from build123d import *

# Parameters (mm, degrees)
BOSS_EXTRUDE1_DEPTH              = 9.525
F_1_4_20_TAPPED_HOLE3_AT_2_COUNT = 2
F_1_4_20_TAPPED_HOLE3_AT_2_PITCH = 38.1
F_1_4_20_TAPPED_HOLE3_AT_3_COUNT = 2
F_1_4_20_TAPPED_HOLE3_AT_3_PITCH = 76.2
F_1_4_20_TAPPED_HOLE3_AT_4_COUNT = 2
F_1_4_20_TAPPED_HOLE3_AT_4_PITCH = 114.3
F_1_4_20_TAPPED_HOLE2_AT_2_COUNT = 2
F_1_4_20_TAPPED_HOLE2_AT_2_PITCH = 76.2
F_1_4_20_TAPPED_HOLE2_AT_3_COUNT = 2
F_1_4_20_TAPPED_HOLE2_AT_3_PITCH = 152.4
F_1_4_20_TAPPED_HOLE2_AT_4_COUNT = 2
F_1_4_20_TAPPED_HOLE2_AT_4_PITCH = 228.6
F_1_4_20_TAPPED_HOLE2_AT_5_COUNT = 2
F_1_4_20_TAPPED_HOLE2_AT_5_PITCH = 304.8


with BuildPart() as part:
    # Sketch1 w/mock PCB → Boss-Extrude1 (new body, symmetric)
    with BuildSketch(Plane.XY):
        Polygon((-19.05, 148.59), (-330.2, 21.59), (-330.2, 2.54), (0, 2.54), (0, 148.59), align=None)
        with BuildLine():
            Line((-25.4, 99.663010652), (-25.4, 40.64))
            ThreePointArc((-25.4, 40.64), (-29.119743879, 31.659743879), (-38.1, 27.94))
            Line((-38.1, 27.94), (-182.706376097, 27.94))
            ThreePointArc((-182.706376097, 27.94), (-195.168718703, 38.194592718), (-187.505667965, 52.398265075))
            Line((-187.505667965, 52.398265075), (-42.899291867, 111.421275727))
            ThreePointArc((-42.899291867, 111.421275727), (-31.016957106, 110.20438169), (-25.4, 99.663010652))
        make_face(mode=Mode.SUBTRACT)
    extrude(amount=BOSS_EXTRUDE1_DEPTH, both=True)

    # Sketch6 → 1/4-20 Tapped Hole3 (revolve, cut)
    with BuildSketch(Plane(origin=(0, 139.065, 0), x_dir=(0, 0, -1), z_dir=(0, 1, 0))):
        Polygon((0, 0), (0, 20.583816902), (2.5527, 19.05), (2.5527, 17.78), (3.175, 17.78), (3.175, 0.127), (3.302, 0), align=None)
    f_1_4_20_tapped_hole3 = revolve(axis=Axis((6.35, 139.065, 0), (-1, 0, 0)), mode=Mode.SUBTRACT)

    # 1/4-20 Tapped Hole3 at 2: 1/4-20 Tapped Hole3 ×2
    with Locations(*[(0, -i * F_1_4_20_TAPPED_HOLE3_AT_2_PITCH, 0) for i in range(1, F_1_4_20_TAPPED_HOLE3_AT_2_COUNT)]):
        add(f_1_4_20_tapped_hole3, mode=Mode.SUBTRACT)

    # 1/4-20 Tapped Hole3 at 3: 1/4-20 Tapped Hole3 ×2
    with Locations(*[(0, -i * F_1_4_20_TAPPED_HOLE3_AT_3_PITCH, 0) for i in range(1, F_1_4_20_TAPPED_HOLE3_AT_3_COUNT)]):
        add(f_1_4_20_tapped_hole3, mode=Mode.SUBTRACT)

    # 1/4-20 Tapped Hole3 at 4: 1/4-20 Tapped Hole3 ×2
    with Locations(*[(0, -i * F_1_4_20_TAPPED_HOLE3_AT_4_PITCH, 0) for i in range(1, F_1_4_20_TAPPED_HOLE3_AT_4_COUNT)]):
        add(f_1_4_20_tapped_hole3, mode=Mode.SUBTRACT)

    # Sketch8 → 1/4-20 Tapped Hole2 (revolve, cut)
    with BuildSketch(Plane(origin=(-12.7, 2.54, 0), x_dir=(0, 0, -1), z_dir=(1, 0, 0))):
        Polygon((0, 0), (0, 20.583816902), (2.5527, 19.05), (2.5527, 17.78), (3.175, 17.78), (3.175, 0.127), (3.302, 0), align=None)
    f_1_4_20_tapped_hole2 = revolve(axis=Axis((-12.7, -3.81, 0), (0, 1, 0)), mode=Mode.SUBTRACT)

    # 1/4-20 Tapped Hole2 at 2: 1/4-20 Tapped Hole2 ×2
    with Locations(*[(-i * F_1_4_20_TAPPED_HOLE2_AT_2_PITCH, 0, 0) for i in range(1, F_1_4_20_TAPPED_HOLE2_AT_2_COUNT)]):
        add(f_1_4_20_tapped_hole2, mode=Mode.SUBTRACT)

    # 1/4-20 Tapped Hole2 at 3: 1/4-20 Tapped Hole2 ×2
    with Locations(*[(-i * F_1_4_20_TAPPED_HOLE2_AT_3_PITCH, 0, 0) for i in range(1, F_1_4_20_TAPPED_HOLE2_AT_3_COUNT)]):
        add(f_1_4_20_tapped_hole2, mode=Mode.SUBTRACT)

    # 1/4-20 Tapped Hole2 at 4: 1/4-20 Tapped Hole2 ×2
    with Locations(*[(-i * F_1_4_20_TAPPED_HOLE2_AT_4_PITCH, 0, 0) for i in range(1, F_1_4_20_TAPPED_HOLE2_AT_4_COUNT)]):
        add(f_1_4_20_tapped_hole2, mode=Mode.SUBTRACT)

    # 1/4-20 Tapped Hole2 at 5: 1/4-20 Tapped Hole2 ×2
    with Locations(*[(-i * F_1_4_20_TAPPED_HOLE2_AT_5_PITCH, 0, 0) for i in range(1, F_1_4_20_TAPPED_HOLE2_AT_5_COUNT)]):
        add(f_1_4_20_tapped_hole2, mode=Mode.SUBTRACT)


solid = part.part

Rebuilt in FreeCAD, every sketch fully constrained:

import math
import FreeCAD as App
import Part
import Sketcher
from FreeCAD import Vector
Q = App.Units.Quantity

doc = App.newDocument("Part")
body = doc.addObject("PartDesign::Body", "Body")

# Sketch on XY plane
sketch1 = body.newObject("Sketcher::SketchObject", "Sketch")
sketch1.AttachmentSupport = (doc.getObject("XY_Plane"), [""])
sketch1.MapMode = "FlatFace"
sketch1.addGeometry([
    Part.LineSegment(Vector(-19, 149, 0), Vector(-330, 22, 0)),  # 0
    Part.LineSegment(Vector(-330, 22, 0), Vector(-330, 3, 0)),  # 1
    Part.LineSegment(Vector(-330, 3, 0), Vector(0, 3, 0)),  # 2
    Part.LineSegment(Vector(0, 3, 0), Vector(0, 149, 0)),  # 3
    Part.LineSegment(Vector(0, 149, 0), Vector(-19, 149, 0)),  # 4
    Part.ArcOfCircle(Part.Circle(Vector(-38, 100, 0), Vector(0, 0, 1), 13), math.radians(0), math.radians(112)),  # 5
    Part.LineSegment(Vector(-25, 100, 0), Vector(-25, 41, 0)),  # 6
    Part.ArcOfCircle(Part.Circle(Vector(-38, 41, 0), Vector(0, 0, 1), 13), math.radians(-90), math.radians(0)),  # 7
    Part.LineSegment(Vector(-38, 28, 0), Vector(-183, 28, 0)),  # 8
    Part.ArcOfCircle(Part.Circle(Vector(-183, 41, 0), Vector(0, 0, 1), 13), math.radians(112), math.radians(270)),  # 9
    Part.LineSegment(Vector(-188, 52, 0), Vector(-43, 111, 0)),  # 10
], False)
sketch1.addConstraint([
    Sketcher.Constraint("Coincident", 0, 2, 1, 1),
    Sketcher.Constraint("Coincident", 1, 2, 2, 1),
    Sketcher.Constraint("Coincident", 2, 2, 3, 1),
    Sketcher.Constraint("Coincident", 3, 2, 4, 1),
    Sketcher.Constraint("Coincident", 4, 2, 0, 1),
    Sketcher.Constraint("Tangent", 5, 1, 6, 1),
    Sketcher.Constraint("Tangent", 6, 2, 7, 2),
    Sketcher.Constraint("Tangent", 7, 1, 8, 1),
    Sketcher.Constraint("Tangent", 8, 2, 9, 2),
    Sketcher.Constraint("Tangent", 9, 1, 10, 1),
    Sketcher.Constraint("Tangent", 10, 2, 5, 2),
    Sketcher.Constraint("Vertical", 1),
    Sketcher.Constraint("Horizontal", 2),
    Sketcher.Constraint("Vertical", 3),
    Sketcher.Constraint("Horizontal", 4),
    Sketcher.Constraint("Vertical", 6),
    Sketcher.Constraint("Horizontal", 8),
    Sketcher.Constraint("Equal", 5, 7),
    Sketcher.Constraint("Equal", 7, 9),
    Sketcher.Constraint("PointOnObject", 2, 2, -2),
    Sketcher.Constraint("Parallel", 0, 10),
    Sketcher.Constraint("Equal", 4, 1),
    Sketcher.Constraint("Radius", 5, Q("0.5 in")),
    Sketcher.Constraint("DistanceX", 2, 1, 2, 2, Q("13 in")),
    Sketcher.Constraint("DistanceX", 5, 1, -1, 1, Q("1 in")),
    Sketcher.Constraint("DistanceY", 0, 2, 3, 2, Q("5 in")),
    Sketcher.Constraint("DistanceY", 2, 2, 7, 1, Q("1 in")),
    Sketcher.Constraint("DistanceX", 4, 2, 4, 1, Q("0.75 in")),
    Sketcher.Constraint("DistanceY", -1, 1, 7, 3, Q("1.6 in")),
    Sketcher.Constraint("DistanceY", 6, 2, 6, 1, Q("59.023011 mm")),
])
pad1 = body.newObject("PartDesign::Pad", "Pad")
pad1.Profile = sketch1
pad1.Length = Q("0.75 in")
pad1.Midplane = True

# Sketch on XZ plane
sketch2 = body.newObject("Sketcher::SketchObject", "Sketch001")
sketch2.AttachmentSupport = (doc.getObject("XZ_Plane"), [""])
sketch2.MapMode = "FlatFace"
sketch2.AttachmentOffset = App.Placement(Vector(0, 0, -5.475 * 25.4), App.Rotation())
sketch2.addGeometry([
    Part.LineSegment(Vector(-20.58, 0, 0), Vector(0, 0, 0)),  # 0
    Part.LineSegment(Vector(0, 0, 0), Vector(0, -3.3, 0)),  # 1
    Part.LineSegment(Vector(0, -3.3, 0), Vector(-0.13, -3.17, 0)),  # 2
    Part.LineSegment(Vector(-0.13, -3.17, 0), Vector(-17.78, -3.17, 0)),  # 3
    Part.LineSegment(Vector(-17.78, -3.17, 0), Vector(-17.78, -2.55, 0)),  # 4
    Part.LineSegment(Vector(-17.78, -2.55, 0), Vector(-19.05, -2.55, 0)),  # 5
    Part.LineSegment(Vector(-19.05, -2.55, 0), Vector(-20.58, 0, 0)),  # 6
], False)
sketch2.addConstraint([
    Sketcher.Constraint("Coincident", 0, 2, 1, 1),
    Sketcher.Constraint("Coincident", 1, 2, 2, 1),
    Sketcher.Constraint("Coincident", 2, 2, 3, 1),
    Sketcher.Constraint("Coincident", 3, 2, 4, 1),
    Sketcher.Constraint("Coincident", 4, 2, 5, 1),
    Sketcher.Constraint("Coincident", 5, 2, 6, 1),
    Sketcher.Constraint("Coincident", 6, 2, 0, 1),
    Sketcher.Constraint("Horizontal", 0),
    Sketcher.Constraint("Vertical", 1),
    Sketcher.Constraint("Horizontal", 3),
    Sketcher.Constraint("Vertical", 4),
    Sketcher.Constraint("Horizontal", 5),
    Sketcher.Constraint("Coincident", 0, 2, -1, 1),
    Sketcher.Constraint("Angle", 2, Q("135 deg")),
    Sketcher.Constraint("Angle", 6, Q("121 deg")),
    Sketcher.Constraint("DistanceX", 5, 2, 5, 1, Q("0.05 in")),
    Sketcher.Constraint("DistanceY", 1, 2, 1, 1, Q("0.13 in")),
    Sketcher.Constraint("DistanceX", 3, 2, -1, 1, Q("0.7 in")),
    Sketcher.Constraint("DistanceX", 3, 2, 3, 1, Q("0.695 in")),
    Sketcher.Constraint("DistanceY", 4, 1, 4, 2, Q("0.0245 in")),
])
groove = body.newObject("PartDesign::Groove", "Groove")
groove.Profile = sketch2
groove.ReferenceAxis = (sketch2, ["H_Axis"])
groove.Angle = 360
doc.recompute()

linearpattern = body.newObject("PartDesign::LinearPattern", "LinearPattern")
linearpattern.Originals = [groove]
linearpattern.Direction = (doc.getObject("Y_Axis"), [""])
linearpattern.Mode = "offset"
linearpattern.Offset = Q("1.5 in")
linearpattern.Occurrences = 2
linearpattern.Reversed = True
body.Tip = linearpattern
doc.recompute()

linearpattern2 = body.newObject("PartDesign::LinearPattern", "LinearPattern001")
linearpattern2.Originals = [groove]
linearpattern2.Direction = (doc.getObject("Y_Axis"), [""])
linearpattern2.Mode = "offset"
linearpattern2.Offset = Q("3 in")
linearpattern2.Occurrences = 2
linearpattern2.Reversed = True
body.Tip = linearpattern2
doc.recompute()

linearpattern3 = body.newObject("PartDesign::LinearPattern", "LinearPattern002")
linearpattern3.Originals = [groove]
linearpattern3.Direction = (doc.getObject("Y_Axis"), [""])
linearpattern3.Mode = "offset"
linearpattern3.Offset = Q("4.5 in")
linearpattern3.Occurrences = 2
linearpattern3.Reversed = True
body.Tip = linearpattern3

# Sketch on YZ plane
sketch3 = body.newObject("Sketcher::SketchObject", "Sketch002")
sketch3.AttachmentSupport = (doc.getObject("YZ_Plane"), [""])
sketch3.MapMode = "FlatFace"
sketch3.AttachmentOffset = App.Placement(Vector(0, 0, -0.5 * 25.4), App.Rotation())
sketch3.addGeometry([
    Part.LineSegment(Vector(23.12, 0, 0), Vector(2.54, 0, 0)),  # 0
    Part.LineSegment(Vector(2.54, 0, 0), Vector(2.54, -3.3, 0)),  # 1
    Part.LineSegment(Vector(2.54, -3.3, 0), Vector(2.67, -3.17, 0)),  # 2
    Part.LineSegment(Vector(2.67, -3.17, 0), Vector(20.32, -3.17, 0)),  # 3
    Part.LineSegment(Vector(20.32, -3.17, 0), Vector(20.32, -2.55, 0)),  # 4
    Part.LineSegment(Vector(20.32, -2.55, 0), Vector(21.59, -2.55, 0)),  # 5
    Part.LineSegment(Vector(21.59, -2.55, 0), Vector(23.12, 0, 0)),  # 6
], False)
sketch3.addConstraint([
    Sketcher.Constraint("Coincident", 0, 2, 1, 1),
    Sketcher.Constraint("Coincident", 1, 2, 2, 1),
    Sketcher.Constraint("Coincident", 2, 2, 3, 1),
    Sketcher.Constraint("Coincident", 3, 2, 4, 1),
    Sketcher.Constraint("Coincident", 4, 2, 5, 1),
    Sketcher.Constraint("Coincident", 5, 2, 6, 1),
    Sketcher.Constraint("Coincident", 6, 2, 0, 1),
    Sketcher.Constraint("Horizontal", 0),
    Sketcher.Constraint("Vertical", 1),
    Sketcher.Constraint("Horizontal", 3),
    Sketcher.Constraint("Vertical", 4),
    Sketcher.Constraint("Horizontal", 5),
    Sketcher.Constraint("PointOnObject", 0, 2, -1),
    Sketcher.Constraint("Angle", 2, Q("45 deg")),
    Sketcher.Constraint("Angle", 6, Q("59 deg")),
    Sketcher.Constraint("DistanceX", 5, 1, 5, 2, Q("0.05 in")),
    Sketcher.Constraint("DistanceY", 1, 2, 1, 1, Q("0.13 in")),
    Sketcher.Constraint("DistanceX", -1, 1, 0, 2, Q("0.1 in")),
    Sketcher.Constraint("DistanceX", -1, 1, 3, 2, Q("0.8 in")),
    Sketcher.Constraint("DistanceX", 3, 1, 3, 2, Q("0.695 in")),
    Sketcher.Constraint("DistanceY", 4, 1, 4, 2, Q("0.0245 in")),
])
groove2 = body.newObject("PartDesign::Groove", "Groove001")
groove2.Profile = sketch3
groove2.ReferenceAxis = (sketch3, ["H_Axis"])
groove2.Angle = 360
doc.recompute()

linearpattern4 = body.newObject("PartDesign::LinearPattern", "LinearPattern003")
linearpattern4.Originals = [groove2]
linearpattern4.Direction = (doc.getObject("X_Axis"), [""])
linearpattern4.Mode = "offset"
linearpattern4.Offset = Q("3 in")
linearpattern4.Occurrences = 2
linearpattern4.Reversed = True
body.Tip = linearpattern4
doc.recompute()

linearpattern5 = body.newObject("PartDesign::LinearPattern", "LinearPattern004")
linearpattern5.Originals = [groove2]
linearpattern5.Direction = (doc.getObject("X_Axis"), [""])
linearpattern5.Mode = "offset"
linearpattern5.Offset = Q("6 in")
linearpattern5.Occurrences = 2
linearpattern5.Reversed = True
body.Tip = linearpattern5
doc.recompute()

linearpattern6 = body.newObject("PartDesign::LinearPattern", "LinearPattern005")
linearpattern6.Originals = [groove2]
linearpattern6.Direction = (doc.getObject("X_Axis"), [""])
linearpattern6.Mode = "offset"
linearpattern6.Offset = Q("9 in")
linearpattern6.Occurrences = 2
linearpattern6.Reversed = True
body.Tip = linearpattern6
doc.recompute()

linearpattern7 = body.newObject("PartDesign::LinearPattern", "LinearPattern006")
linearpattern7.Originals = [groove2]
linearpattern7.Direction = (doc.getObject("X_Axis"), [""])
linearpattern7.Mode = "offset"
linearpattern7.Offset = Q("12 in")
linearpattern7.Occurrences = 2
linearpattern7.Reversed = True
body.Tip = linearpattern7

doc.recompute()
